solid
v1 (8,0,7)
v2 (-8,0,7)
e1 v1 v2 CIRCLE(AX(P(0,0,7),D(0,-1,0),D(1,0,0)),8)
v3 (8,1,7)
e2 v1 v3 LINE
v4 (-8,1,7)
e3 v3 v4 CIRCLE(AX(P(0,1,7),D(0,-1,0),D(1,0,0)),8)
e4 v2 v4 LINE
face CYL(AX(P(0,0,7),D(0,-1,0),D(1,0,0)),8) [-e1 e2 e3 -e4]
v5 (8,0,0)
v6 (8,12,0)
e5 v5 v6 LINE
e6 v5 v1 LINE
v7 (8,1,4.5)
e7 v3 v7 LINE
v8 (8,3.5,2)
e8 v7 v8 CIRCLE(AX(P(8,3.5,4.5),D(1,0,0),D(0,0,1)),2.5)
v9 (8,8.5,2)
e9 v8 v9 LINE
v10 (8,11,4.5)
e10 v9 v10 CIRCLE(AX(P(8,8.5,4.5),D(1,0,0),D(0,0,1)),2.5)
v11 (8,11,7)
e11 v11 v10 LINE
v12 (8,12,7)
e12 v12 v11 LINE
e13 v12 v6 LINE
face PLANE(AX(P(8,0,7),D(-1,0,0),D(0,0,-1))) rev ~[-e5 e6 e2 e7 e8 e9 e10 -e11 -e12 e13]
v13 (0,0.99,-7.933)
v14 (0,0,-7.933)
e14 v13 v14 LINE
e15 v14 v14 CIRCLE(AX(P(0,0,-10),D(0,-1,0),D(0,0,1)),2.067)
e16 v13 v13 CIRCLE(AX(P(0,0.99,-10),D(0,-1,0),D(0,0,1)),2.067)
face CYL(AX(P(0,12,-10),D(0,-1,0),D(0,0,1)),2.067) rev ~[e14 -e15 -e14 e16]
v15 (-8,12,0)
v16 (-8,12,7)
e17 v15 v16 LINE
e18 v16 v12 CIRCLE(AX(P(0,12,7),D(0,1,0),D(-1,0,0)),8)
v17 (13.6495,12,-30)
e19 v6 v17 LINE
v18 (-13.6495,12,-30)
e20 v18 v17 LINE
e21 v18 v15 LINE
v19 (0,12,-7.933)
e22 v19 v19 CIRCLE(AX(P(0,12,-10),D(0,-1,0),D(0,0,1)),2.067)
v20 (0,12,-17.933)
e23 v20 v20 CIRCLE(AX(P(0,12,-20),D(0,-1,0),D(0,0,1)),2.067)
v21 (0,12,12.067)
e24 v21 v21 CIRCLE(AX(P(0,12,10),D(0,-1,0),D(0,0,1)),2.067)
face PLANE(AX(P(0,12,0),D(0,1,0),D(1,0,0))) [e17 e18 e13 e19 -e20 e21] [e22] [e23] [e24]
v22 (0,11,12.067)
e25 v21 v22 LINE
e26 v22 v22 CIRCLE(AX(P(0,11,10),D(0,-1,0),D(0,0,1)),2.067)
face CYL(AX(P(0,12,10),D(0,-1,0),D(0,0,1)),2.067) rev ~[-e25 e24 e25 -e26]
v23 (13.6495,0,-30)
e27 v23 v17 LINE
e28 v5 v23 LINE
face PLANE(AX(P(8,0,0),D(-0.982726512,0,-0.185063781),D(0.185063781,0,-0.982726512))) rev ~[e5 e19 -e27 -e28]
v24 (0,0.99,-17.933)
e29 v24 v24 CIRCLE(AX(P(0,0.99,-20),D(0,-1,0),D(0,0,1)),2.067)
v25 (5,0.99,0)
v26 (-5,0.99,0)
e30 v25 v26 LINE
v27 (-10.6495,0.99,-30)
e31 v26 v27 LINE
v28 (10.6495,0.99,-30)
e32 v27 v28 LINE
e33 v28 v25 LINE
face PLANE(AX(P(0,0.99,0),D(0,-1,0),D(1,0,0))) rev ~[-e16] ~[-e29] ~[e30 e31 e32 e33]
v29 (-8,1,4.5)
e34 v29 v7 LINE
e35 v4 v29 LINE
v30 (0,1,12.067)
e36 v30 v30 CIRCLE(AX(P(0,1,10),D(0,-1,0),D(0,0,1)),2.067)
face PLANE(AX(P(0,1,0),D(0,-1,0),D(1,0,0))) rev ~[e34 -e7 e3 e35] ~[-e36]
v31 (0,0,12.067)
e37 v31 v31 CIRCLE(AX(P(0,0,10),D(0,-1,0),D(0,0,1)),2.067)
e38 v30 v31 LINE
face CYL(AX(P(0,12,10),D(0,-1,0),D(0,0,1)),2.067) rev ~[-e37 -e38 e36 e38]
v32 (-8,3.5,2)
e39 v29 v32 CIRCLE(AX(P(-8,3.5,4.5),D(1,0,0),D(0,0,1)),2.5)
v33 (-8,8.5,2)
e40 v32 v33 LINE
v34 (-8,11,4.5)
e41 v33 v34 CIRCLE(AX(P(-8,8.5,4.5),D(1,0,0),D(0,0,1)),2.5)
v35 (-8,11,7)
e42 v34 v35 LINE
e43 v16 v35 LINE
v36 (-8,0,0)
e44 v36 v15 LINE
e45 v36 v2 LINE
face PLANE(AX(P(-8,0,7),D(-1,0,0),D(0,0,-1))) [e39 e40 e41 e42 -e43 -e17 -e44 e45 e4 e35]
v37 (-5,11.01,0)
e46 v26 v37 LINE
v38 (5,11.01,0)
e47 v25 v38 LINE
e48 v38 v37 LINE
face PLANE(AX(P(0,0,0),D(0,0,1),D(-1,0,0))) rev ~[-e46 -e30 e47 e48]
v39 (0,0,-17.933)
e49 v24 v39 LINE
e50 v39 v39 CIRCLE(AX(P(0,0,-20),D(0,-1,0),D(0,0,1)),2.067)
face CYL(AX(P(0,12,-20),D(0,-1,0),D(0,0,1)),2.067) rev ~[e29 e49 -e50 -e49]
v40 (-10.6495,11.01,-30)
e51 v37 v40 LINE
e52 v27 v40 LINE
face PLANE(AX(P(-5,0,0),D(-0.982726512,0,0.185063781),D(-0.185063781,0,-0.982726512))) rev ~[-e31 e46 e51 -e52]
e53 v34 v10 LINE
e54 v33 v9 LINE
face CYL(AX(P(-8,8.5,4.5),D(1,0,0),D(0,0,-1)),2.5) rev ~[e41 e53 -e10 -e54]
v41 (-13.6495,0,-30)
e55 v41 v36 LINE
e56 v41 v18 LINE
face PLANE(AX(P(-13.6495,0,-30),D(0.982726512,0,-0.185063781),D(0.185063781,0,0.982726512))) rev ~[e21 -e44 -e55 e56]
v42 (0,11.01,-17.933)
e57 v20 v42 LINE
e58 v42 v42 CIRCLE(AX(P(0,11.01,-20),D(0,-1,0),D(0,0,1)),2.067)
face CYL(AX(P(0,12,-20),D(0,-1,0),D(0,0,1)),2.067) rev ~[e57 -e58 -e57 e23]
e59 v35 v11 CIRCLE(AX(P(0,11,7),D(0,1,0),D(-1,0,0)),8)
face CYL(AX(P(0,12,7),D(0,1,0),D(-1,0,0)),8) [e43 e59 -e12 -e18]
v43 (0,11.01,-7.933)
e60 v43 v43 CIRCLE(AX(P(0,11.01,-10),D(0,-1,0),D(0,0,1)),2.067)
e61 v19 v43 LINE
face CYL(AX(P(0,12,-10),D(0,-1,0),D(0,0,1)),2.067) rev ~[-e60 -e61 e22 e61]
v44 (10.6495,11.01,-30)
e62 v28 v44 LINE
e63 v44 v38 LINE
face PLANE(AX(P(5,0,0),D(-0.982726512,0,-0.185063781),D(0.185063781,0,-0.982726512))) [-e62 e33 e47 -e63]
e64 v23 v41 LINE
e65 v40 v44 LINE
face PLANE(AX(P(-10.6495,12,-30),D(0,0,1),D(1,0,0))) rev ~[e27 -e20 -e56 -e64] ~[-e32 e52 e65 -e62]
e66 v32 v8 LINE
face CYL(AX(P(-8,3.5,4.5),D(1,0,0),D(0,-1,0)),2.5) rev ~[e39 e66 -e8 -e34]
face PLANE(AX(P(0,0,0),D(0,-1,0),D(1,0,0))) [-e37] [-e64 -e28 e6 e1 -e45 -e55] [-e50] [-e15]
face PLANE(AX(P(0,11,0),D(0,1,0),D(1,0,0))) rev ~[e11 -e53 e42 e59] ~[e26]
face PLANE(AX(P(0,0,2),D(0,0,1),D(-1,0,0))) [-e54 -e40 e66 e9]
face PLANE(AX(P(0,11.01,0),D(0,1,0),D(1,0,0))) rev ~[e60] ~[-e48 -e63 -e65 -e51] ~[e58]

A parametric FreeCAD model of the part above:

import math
import FreeCAD as App
import Part
import Sketcher


def edges_at(feature, points):
    """Names of the edges that pass closest to the given points."""
    edges = feature.Shape.Edges
    near = lambda p: min(range(len(edges)), key=lambda i: edges[i].distToShape(Part.Vertex(*p))[0])
    return sorted({f"Edge{near(p) + 1}" for p in points})


def add_polygon(sketch, points):
    """Adds a closed chain of lines whose ends are joined by coincident constraints."""
    first, n = sketch.GeometryCount, len(points)
    for a, b in zip(points, points[1:] + points[:1]):
        sketch.addGeometry(Part.LineSegment(App.Vector(*a, 0), App.Vector(*b, 0)), False)
    for i in range(n):
        sketch.addConstraint(Sketcher.Constraint("Coincident", first + i, 2, first + (i + 1) % n, 1))

doc = App.newDocument("Part")
params = doc.addObject("Spreadsheet::Sheet", "Params")
for row, (alias, value) in enumerate([
    ("sketch1_width", "3 mm"),
    ("sketch1_height", "2 mm"),
    ("pad1_length", "12 mm"),
    ("sketch2_width", "10 mm"),
    ("pad2_length", "0.99 mm"),
    ("sketch3_width", "10 mm"),
    ("pad3_length", "0.99 mm"),
    ("hole_diameter", "4.134 mm"),
    ("sketch5_height", "5 mm"),
    ("sketch5_radius", "8 mm"),
    ("pad4_length", "1 mm"),
    ("fillet_radius", "2.5 mm"),
    ("sketch6_radius", "8 mm"),
    ("sketch6_height", "5 mm"),
    ("pad5_length", "1 mm"),
    ("fillet2_radius", "2.5 mm"),
    ("hole2_diameter", "4.134 mm"),
], start=1):
    params.set(f"A{row}", alias)
    params.set(f"B{row}", "=" + value)
    params.setAlias(f"B{row}", alias)

body = doc.addObject("PartDesign::Body", "Body")

sketch1 = body.newObject("Sketcher::SketchObject", "Sketch")
sketch1.AttachmentSupport = (doc.getObject("XZ_Plane"), [""])
sketch1.MapMode = "FlatFace"
add_polygon(sketch1, [(-8, 2), (8, 2), (8, 0), (13.6, -30), (10.6, -30), (5, 0), (-5, 0), (-10.6, -30), (-13.6, -30), (-8, 0)])
sketch1.addConstraint([
    Sketcher.Constraint("Horizontal", 0),
    Sketcher.Constraint("Vertical", 1),
    Sketcher.Constraint("Horizontal", 3),
    Sketcher.Constraint("Horizontal", 5),
    Sketcher.Constraint("Horizontal", 7),
    Sketcher.Constraint("Vertical", 9),
    Sketcher.Constraint("Symmetric", 4, 2, 5, 2, -1, 1),
    Sketcher.Constraint("Symmetric", 1, 2, 8, 2, -1, 1),
    Sketcher.Constraint("Symmetric", 3, 2, 6, 2, -2),
    Sketcher.Constraint("PointOnObject", 1, 2, -1),
    Sketcher.Constraint("Parallel", 2, 4),
    Sketcher.Constraint("Parallel", 6, 8),
    Sketcher.Constraint("DistanceX", 3, 2, 3, 1, 3.0),
    Sketcher.Constraint("DistanceY", 1, 2, 1, 1, 2.0),
    Sketcher.Constraint("DistanceY", 2, 2, -1, 1, 30.0),
    Sketcher.Constraint("DistanceX", -1, 1, 4, 2, 5.0),
    Sketcher.Constraint("DistanceX", -1, 1, 3, 2, 10.6495),
])
sketch1.setExpression("Constraints[22]", "Params.sketch1_width")
sketch1.setExpression("Constraints[23]", "Params.sketch1_height")
pad1 = body.newObject("PartDesign::Pad", "Pad")
pad1.Profile = sketch1
pad1.setExpression("Length", "Params.pad1_length")
pad1.Reversed = True

sketch2 = body.newObject("Sketcher::SketchObject", "Sketch001")
sketch2.AttachmentSupport = (doc.getObject("XZ_Plane"), [""])
sketch2.MapMode = "FlatFace"
add_polygon(sketch2, [(5, 0), (-5, 0), (-11, -30), (11, -30)])
sketch2.addConstraint([
    Sketcher.Constraint("Horizontal", 0),
    Sketcher.Constraint("Horizontal", 2),
    Sketcher.Constraint("Symmetric", 0, 2, 3, 2, -1, 1),
    Sketcher.Constraint("Equal", 1, 3),
    Sketcher.Constraint("DistanceX", 0, 2, 0, 1, 10.0),
    Sketcher.Constraint("DistanceY", 1, 2, -1, 1, 30.0),
    Sketcher.Constraint("DistanceX", 2, 1, 2, 2, 21.299),
])
sketch2.setExpression("Constraints[8]", "Params.sketch2_width")
pad2 = body.newObject("PartDesign::Pad", "Pad001")
pad2.Profile = sketch2
pad2.setExpression("Length", "Params.pad2_length")
pad2.Reversed = True

sketch3 = body.newObject("Sketcher::SketchObject", "Sketch002")
sketch3.AttachmentSupport = (doc.getObject("XZ_Plane"), [""])
sketch3.MapMode = "FlatFace"
sketch3.AttachmentOffset = App.Placement(App.Vector(0, 0, -12), App.Rotation())
add_polygon(sketch3, [(-5, 0), (5, 0), (11, -30), (-11, -30)])
sketch3.addConstraint([
    Sketcher.Constraint("Horizontal", 0),
    Sketcher.Constraint("Horizontal", 2),
    Sketcher.Constraint("Symmetric", 0, 2, 3, 2, -1, 1),
    Sketcher.Constraint("Equal", 1, 3),
    Sketcher.Constraint("DistanceX", 0, 1, 0, 2, 10.0),
    Sketcher.Constraint("DistanceY", 1, 2, -1, 1, 30.0),
    Sketcher.Constraint("DistanceX", 2, 2, 2, 1, 21.299),
])
sketch3.setExpression("Constraints[8]", "Params.sketch3_width")
pad3 = body.newObject("PartDesign::Pad", "Pad002")
pad3.Profile = sketch3
pad3.setExpression("Length", "Params.pad3_length")

sketch4 = body.newObject("Sketcher::SketchObject", "Sketch003")
sketch4.AttachmentSupport = (doc.getObject("XZ_Plane"), [""])
sketch4.MapMode = "FlatFace"
sketch4.AttachmentOffset = App.Placement(App.Vector(0, 0, -12), App.Rotation())
sketch4.addGeometry([
    Part.Circle(App.Vector(0, -10, 0), App.Vector(0, 0, 1), 2.1),
    Part.Circle(App.Vector(0, -20, 0), App.Vector(0, 0, 1), 2.1),
], False)
sketch4.addConstraint([
    Sketcher.Constraint("Equal", 0, 1),
    Sketcher.Constraint("PointOnObject", 0, 3, -2),
    Sketcher.Constraint("PointOnObject", 1, 3, -2),
    Sketcher.Constraint("Diameter", 0, 4.134),
    Sketcher.Constraint("DistanceY", 0, 3, -1, 1, 10.0),
    Sketcher.Constraint("DistanceY", 1, 3, -1, 1, 20.0),
])
doc.recompute()
hole = body.newObject("PartDesign::Hole", "Hole")
hole.Profile = sketch4
hole.ThreadType = "None"
hole.setExpression("Diameter", "Params.hole_diameter")
hole.DepthType = "ThroughAll"
hole.Reversed = True

sketch5 = body.newObject("Sketcher::SketchObject", "Sketch004")
sketch5.AttachmentSupport = (doc.getObject("XZ_Plane"), [""])
sketch5.MapMode = "FlatFace"
sketch5.AttachmentOffset = App.Placement(App.Vector(0, 0, -12), App.Rotation())
sketch5.addGeometry([
    Part.LineSegment(App.Vector(8, 2, 0), App.Vector(-8, 2, 0)),
    Part.LineSegment(App.Vector(-8, 2, 0), App.Vector(-8, 7, 0)),
    Part.ArcOfCircle(Part.Circle(App.Vector(0, 7, 0), App.Vector(0, 0, 1), 8), math.radians(0), math.radians(180)),
    Part.LineSegment(App.Vector(8, 7, 0), App.Vector(8, 2, 0)),
], False)
sketch5.addConstraint([
    Sketcher.Constraint("Coincident", 0, 2, 1, 1),
    Sketcher.Constraint("Tangent", 1, 2, 2, 2),
    Sketcher.Constraint("Tangent", 2, 1, 3, 1),
    Sketcher.Constraint("Coincident", 3, 2, 0, 1),
    Sketcher.Constraint("Horizontal", 0),
    Sketcher.Constraint("Vertical", 1),
    Sketcher.Constraint("Vertical", 3),
    Sketcher.Constraint("PointOnObject", 2, 3, -2),
    Sketcher.Constraint("DistanceY", 1, 1, 1, 2, 5.0),
    Sketcher.Constraint("Radius", 2, 8.0),
    Sketcher.Constraint("DistanceY", -1, 1, 2, 3, 7.0),
])
sketch5.setExpression("Constraints[8]", "Params.sketch5_height")
sketch5.setExpression("Constraints[9]", "Params.sketch5_radius")
pad4 = body.newObject("PartDesign::Pad", "Pad003")
pad4.Profile = sketch5
pad4.setExpression("Length", "Params.pad4_length")
doc.recompute()

fillet = body.newObject("PartDesign::Fillet", "Fillet")
fillet.Base = (pad4, edges_at(pad4, [(0, 11, 2)]))
fillet.setExpression("Radius", "Params.fillet_radius")

sketch6 = body.newObject("Sketcher::SketchObject", "Sketch005")
sketch6.AttachmentSupport = (doc.getObject("XZ_Plane"), [""])
sketch6.MapMode = "FlatFace"
sketch6.addGeometry([
    Part.LineSegment(App.Vector(-8, 7, 0), App.Vector(-8, 2, 0)),
    Part.LineSegment(App.Vector(-8, 2, 0), App.Vector(8, 2, 0)),
    Part.LineSegment(App.Vector(8, 2, 0), App.Vector(8, 7, 0)),
    Part.ArcOfCircle(Part.Circle(App.Vector(0, 7, 0), App.Vector(0, 0, 1), 8), math.radians(0), math.radians(180)),
], False)
sketch6.addConstraint([
    Sketcher.Constraint("Coincident", 0, 2, 1, 1),
    Sketcher.Constraint("Coincident", 1, 2, 2, 1),
    Sketcher.Constraint("Tangent", 2, 2, 3, 1),
    Sketcher.Constraint("Tangent", 3, 2, 0, 1),
    Sketcher.Constraint("Vertical", 0),
    Sketcher.Constraint("Horizontal", 1),
    Sketcher.Constraint("Vertical", 2),
    Sketcher.Constraint("PointOnObject", 3, 3, -2),
    Sketcher.Constraint("Radius", 3, 8.0),
    Sketcher.Constraint("DistanceY", 0, 2, 0, 1, 5.0),
    Sketcher.Constraint("DistanceY", -1, 1, 3, 3, 7.0),
])
sketch6.setExpression("Constraints[8]", "Params.sketch6_radius")
sketch6.setExpression("Constraints[9]", "Params.sketch6_height")
pad5 = body.newObject("PartDesign::Pad", "Pad004")
pad5.Profile = sketch6
pad5.setExpression("Length", "Params.pad5_length")
pad5.Reversed = True
doc.recompute()

fillet2 = body.newObject("PartDesign::Fillet", "Fillet001")
fillet2.Base = (pad5, edges_at(pad5, [(0, 1, 2)]))
fillet2.setExpression("Radius", "Params.fillet2_radius")

sketch7 = body.newObject("Sketcher::SketchObject", "Sketch006")
sketch7.AttachmentSupport = (doc.getObject("XZ_Plane"), [""])
sketch7.MapMode = "FlatFace"
sketch7.AttachmentOffset = App.Placement(App.Vector(0, 0, -12), App.Rotation())
sketch7.addGeometry(Part.Circle(App.Vector(0, 10, 0), App.Vector(0, 0, 1), 2.1), False)
sketch7.addConstraint([
    Sketcher.Constraint("PointOnObject", 0, 3, -2),
    Sketcher.Constraint("Diameter", 0, 4.134),
    Sketcher.Constraint("DistanceY", -1, 1, 0, 3, 10.0),
])
doc.recompute()
hole2 = body.newObject("PartDesign::Hole", "Hole001")
hole2.Profile = sketch7
hole2.ThreadType = "None"
hole2.setExpression("Diameter", "Params.hole2_diameter")
hole2.DepthType = "ThroughAll"
hole2.Reversed = True

doc.recompute()
